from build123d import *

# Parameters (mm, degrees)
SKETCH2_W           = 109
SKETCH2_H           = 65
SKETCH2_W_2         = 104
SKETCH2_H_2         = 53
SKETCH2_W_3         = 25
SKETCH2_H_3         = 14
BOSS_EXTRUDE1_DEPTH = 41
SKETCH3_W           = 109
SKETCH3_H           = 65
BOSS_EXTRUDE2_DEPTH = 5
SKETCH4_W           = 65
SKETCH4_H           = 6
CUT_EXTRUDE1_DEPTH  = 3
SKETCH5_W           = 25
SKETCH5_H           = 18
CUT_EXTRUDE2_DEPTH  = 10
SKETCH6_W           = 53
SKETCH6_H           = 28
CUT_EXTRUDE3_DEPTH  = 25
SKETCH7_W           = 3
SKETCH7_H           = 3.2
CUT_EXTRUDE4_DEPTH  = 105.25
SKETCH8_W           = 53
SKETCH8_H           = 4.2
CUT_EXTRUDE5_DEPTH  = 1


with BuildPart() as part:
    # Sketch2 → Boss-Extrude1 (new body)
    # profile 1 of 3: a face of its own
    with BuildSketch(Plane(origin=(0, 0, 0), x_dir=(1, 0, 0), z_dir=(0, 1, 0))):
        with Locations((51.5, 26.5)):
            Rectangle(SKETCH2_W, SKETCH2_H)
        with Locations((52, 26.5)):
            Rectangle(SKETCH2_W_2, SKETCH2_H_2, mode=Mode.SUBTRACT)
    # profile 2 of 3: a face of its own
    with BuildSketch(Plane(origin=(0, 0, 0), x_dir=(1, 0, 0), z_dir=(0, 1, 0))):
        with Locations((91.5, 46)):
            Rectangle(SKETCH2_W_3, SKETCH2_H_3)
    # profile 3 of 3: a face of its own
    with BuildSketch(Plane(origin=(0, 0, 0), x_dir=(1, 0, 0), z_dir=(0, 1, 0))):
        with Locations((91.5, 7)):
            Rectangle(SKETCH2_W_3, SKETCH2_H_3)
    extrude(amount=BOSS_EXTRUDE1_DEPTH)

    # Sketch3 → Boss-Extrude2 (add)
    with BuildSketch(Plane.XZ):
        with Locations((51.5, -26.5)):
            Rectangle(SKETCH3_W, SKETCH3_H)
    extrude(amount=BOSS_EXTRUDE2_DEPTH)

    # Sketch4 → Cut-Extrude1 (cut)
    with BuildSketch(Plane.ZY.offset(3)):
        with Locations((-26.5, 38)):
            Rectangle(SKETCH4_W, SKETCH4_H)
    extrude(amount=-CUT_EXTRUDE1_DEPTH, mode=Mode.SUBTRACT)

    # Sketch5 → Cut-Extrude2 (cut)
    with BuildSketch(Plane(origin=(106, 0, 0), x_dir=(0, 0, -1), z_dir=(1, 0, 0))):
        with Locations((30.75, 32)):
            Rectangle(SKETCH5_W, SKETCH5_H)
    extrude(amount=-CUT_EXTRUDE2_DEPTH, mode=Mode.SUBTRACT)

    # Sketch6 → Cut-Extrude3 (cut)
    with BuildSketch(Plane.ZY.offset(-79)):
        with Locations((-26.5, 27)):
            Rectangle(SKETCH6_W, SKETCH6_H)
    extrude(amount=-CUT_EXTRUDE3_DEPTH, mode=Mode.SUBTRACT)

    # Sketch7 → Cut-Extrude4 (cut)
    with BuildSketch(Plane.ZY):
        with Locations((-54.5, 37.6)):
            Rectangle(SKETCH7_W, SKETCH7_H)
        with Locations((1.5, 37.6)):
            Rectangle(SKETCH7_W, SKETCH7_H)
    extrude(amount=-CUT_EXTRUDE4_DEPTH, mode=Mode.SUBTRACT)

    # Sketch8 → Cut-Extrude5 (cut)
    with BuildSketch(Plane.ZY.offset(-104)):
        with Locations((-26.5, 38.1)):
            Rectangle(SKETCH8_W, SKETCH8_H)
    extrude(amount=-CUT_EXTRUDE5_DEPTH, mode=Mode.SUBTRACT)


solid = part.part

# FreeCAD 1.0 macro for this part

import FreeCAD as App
import Part
import Sketcher

V = App.Vector


def add_polygon(sketch, points):
    """Adds a closed chain of lines whose ends are joined by coincident constraints."""
    first, n = sketch.GeometryCount, len(points)
    for a, b in zip(points, points[1:] + points[:1]):
        sketch.addGeometry(Part.LineSegment(App.Vector(*a, 0), App.Vector(*b, 0)), False)
    for i in range(n):
        sketch.addConstraint(Sketcher.Constraint("Coincident", first + i, 2, first + (i + 1) % n, 1))

doc = App.newDocument("Part")
params = doc.addObject("Spreadsheet::Sheet", "Params")
for row, (alias, value) in enumerate([
    ("sketch1_width", "109 mm"),
    ("sketch1_width2", "79 mm"),
    ("sketch1_width3", "25 mm"),
    ("sketch1_height", "65 mm"),
    ("sketch1_height2", "53 mm"),
    ("pad1_length", "41 mm"),
    ("sketch2_width", "109 mm"),
    ("sketch2_height", "65 mm"),
    ("pad2_length", "5 mm"),
    ("sketch3_width", "6 mm"),
    ("sketch3_height", "65 mm"),
    ("pocket1_length", "3 mm"),
    ("sketch4_width", "18 mm"),
    ("sketch4_height", "25 mm"),
    ("pocket2_length", "10 mm"),
    ("sketch5_width", "28 mm"),
    ("sketch5_height", "53 mm"),
    ("pocket3_length", "25 mm"),
    ("sketch6_height", "3 mm"),
    ("sketch6_width", "3.2 mm"),
    ("pocket4_length", "105.25 mm"),
    ("sketch7_height", "53 mm"),
    ("sketch7_width", "4.2 mm"),
    ("pocket5_length", "1 mm"),
], start=1):
    params.set(f"A{row}", alias)
    params.set(f"B{row}", "=" + value)
    params.setAlias(f"B{row}", alias)

body = doc.addObject("PartDesign::Body", "Body")

sketch1 = body.newObject("Sketcher::SketchObject", "Sketch")
sketch1.AttachmentSupport = (doc.getObject("XZ_Plane"), [""])
sketch1.MapMode = "FlatFace"
add_polygon(sketch1, [(-3, -59), (-3, 6), (106, 6), (106, -59)])
add_polygon(sketch1, [(79, 0), (0, 0), (0, -53), (79, -53), (79, -39), (104, -39), (104, -14), (79, -14)])
sketch1.addConstraint([
    Sketcher.Constraint("Vertical", 0),
    Sketcher.Constraint("Horizontal", 1),
    Sketcher.Constraint("Vertical", 2),
    Sketcher.Constraint("Horizontal", 3),
    Sketcher.Constraint("Horizontal", 4),
    Sketcher.Constraint("Vertical", 5),
    Sketcher.Constraint("Horizontal", 6),
    Sketcher.Constraint("Vertical", 7),
    Sketcher.Constraint("Horizontal", 8),
    Sketcher.Constraint("Vertical", 9),
    Sketcher.Constraint("Horizontal", 10),
    Sketcher.Constraint("Vertical", 11),
    Sketcher.Constraint("Coincident", 4, 2, -1, 1),
    Sketcher.Constraint("Vertical", 7, 2, 10, 2),
    Sketcher.Constraint("Equal", 10, 9),
    Sketcher.Constraint("Equal", 7, 11),
    Sketcher.Constraint("DistanceX", 1, 1, 1, 2, 109.0),
    Sketcher.Constraint("DistanceX", 4, 2, 4, 1, 79.0),
    Sketcher.Constraint("DistanceX", 8, 1, 8, 2, 25.0),
    Sketcher.Constraint("DistanceY", 0, 1, 0, 2, 65.0),
    Sketcher.Constraint("DistanceY", 5, 2, 5, 1, 53.0),
    Sketcher.Constraint("DistanceX", 0, 2, -1, 1, 3.0),
    Sketcher.Constraint("DistanceY", -1, 1, 0, 2, 6.0),
])
sketch1.setExpression("Constraints[28]", "Params.sketch1_width")
sketch1.setExpression("Constraints[29]", "Params.sketch1_width2")
sketch1.setExpression("Constraints[30]", "Params.sketch1_width3")
sketch1.setExpression("Constraints[31]", "Params.sketch1_height")
sketch1.setExpression("Constraints[32]", "Params.sketch1_height2")
pad1 = body.newObject("PartDesign::Pad", "Pad")
pad1.Profile = sketch1
pad1.setExpression("Length", "Params.pad1_length")
pad1.Reversed = True

sketch2 = body.newObject("Sketcher::SketchObject", "Sketch001")
sketch2.AttachmentSupport = (doc.getObject("XZ_Plane"), [""])
sketch2.MapMode = "FlatFace"
add_polygon(sketch2, [(-3, 6), (-3, -59), (106, -59), (106, 6)])
sketch2.addConstraint([
    Sketcher.Constraint("Vertical", 0),
    Sketcher.Constraint("Horizontal", 1),
    Sketcher.Constraint("Vertical", 2),
    Sketcher.Constraint("Horizontal", 3),
    Sketcher.Constraint("DistanceX", 1, 1, 1, 2, 109.0),
    Sketcher.Constraint("DistanceY", 0, 2, 0, 1, 65.0),
    Sketcher.Constraint("DistanceX", 0, 2, -1, 1, 3.0),
    Sketcher.Constraint("DistanceY", 0, 2, -1, 1, 59.0),
])
sketch2.setExpression("Constraints[8]", "Params.sketch2_width")
sketch2.setExpression("Constraints[9]", "Params.sketch2_height")
pad2 = body.newObject("PartDesign::Pad", "Pad001")
pad2.Profile = sketch2
pad2.setExpression("Length", "Params.pad2_length")

sketch3 = body.newObject("Sketcher::SketchObject", "Sketch002")
sketch3.AttachmentSupport = (doc.getObject("YZ_Plane"), [""])
sketch3.MapMode = "FlatFace"
sketch3.AttachmentOffset = App.Placement(V(0, 0, -3), App.Rotation())
add_polygon(sketch3, [(41, -59), (35, -59), (35, 6), (41, 6)])
sketch3.addConstraint([
    Sketcher.Constraint("Horizontal", 0),
    Sketcher.Constraint("Vertical", 1),
    Sketcher.Constraint("Horizontal", 2),
    Sketcher.Constraint("Vertical", 3),
    Sketcher.Constraint("DistanceX", 0, 2, 0, 1, 6.0),
    Sketcher.Constraint("DistanceY", 1, 1, 1, 2, 65.0),
    Sketcher.Constraint("DistanceX", -1, 1, 0, 2, 35.0),
    Sketcher.Constraint("DistanceY", 0, 2, -1, 1, 59.0),
])
sketch3.setExpression("Constraints[8]", "Params.sketch3_width")
sketch3.setExpression("Constraints[9]", "Params.sketch3_height")
pocket1 = body.newObject("PartDesign::Pocket", "Pocket")
pocket1.Profile = sketch3
pocket1.setExpression("Length", "Params.pocket1_length")
pocket1.Reversed = True

sketch4 = body.newObject("Sketcher::SketchObject", "Sketch003")
sketch4.AttachmentSupport = (doc.getObject("YZ_Plane"), [""])
sketch4.MapMode = "FlatFace"
sketch4.AttachmentOffset = App.Placement(V(0, 0, 106), App.Rotation())
add_polygon(sketch4, [(41, -18), (23, -18), (23, -43), (41, -43)])
sketch4.addConstraint([
    Sketcher.Constraint("Horizontal", 0),
    Sketcher.Constraint("Vertical", 1),
    Sketcher.Constraint("Horizontal", 2),
    Sketcher.Constraint("Vertical", 3),
    Sketcher.Constraint("DistanceX", 0, 2, 0, 1, 18.0),
    Sketcher.Constraint("DistanceY", 1, 2, 1, 1, 25.0),
    Sketcher.Constraint("DistanceX", -1, 1, 0, 2, 23.0),
    Sketcher.Constraint("DistanceY", 0, 2, -1, 1, 18.25),
])
sketch4.setExpression("Constraints[8]", "Params.sketch4_width")
sketch4.setExpression("Constraints[9]", "Params.sketch4_height")
pocket2 = body.newObject("PartDesign::Pocket", "Pocket001")
pocket2.Profile = sketch4
pocket2.setExpression("Length", "Params.pocket2_length")

sketch5 = body.newObject("Sketcher::SketchObject", "Sketch004")
sketch5.AttachmentSupport = (doc.getObject("YZ_Plane"), [""])
sketch5.MapMode = "FlatFace"
sketch5.AttachmentOffset = App.Placement(V(0, 0, 79), App.Rotation())
add_polygon(sketch5, [(41, -53), (13, -53), (13, 0), (41, 0)])
sketch5.addConstraint([
    Sketcher.Constraint("Horizontal", 0),
    Sketcher.Constraint("Vertical", 1),
    Sketcher.Constraint("Horizontal", 2),
    Sketcher.Constraint("Vertical", 3),
    Sketcher.Constraint("PointOnObject", 1, 2, -1),
    Sketcher.Constraint("DistanceX", 0, 2, 0, 1, 28.0),
    Sketcher.Constraint("DistanceY", 1, 1, 1, 2, 53.0),
    Sketcher.Constraint("DistanceX", -1, 1, 0, 2, 13.0),
])
sketch5.setExpression("Constraints[9]", "Params.sketch5_width")
sketch5.setExpression("Constraints[10]", "Params.sketch5_height")
pocket3 = body.newObject("PartDesign::Pocket", "Pocket002")
pocket3.Profile = sketch5
pocket3.setExpression("Length", "Params.pocket3_length")
pocket3.Reversed = True

sketch6 = body.newObject("Sketcher::SketchObject", "Sketch005")
sketch6.AttachmentSupport = (doc.getObject("YZ_Plane"), [""])
sketch6.MapMode = "FlatFace"
add_polygon(sketch6, [(39.2, -56), (36, -56), (36, -53), (39.2, -53)])
add_polygon(sketch6, [(39.2, 0), (36, 0), (36, 3), (39.2, 3)])
sketch6.addConstraint([
    Sketcher.Constraint("Horizontal", 0),
    Sketcher.Constraint("Vertical", 1),
    Sketcher.Constraint("Horizontal", 2),
    Sketcher.Constraint("Vertical", 3),
    Sketcher.Constraint("Horizontal", 4),
    Sketcher.Constraint("Vertical", 5),
    Sketcher.Constraint("Horizontal", 6),
    Sketcher.Constraint("Vertical", 7),
    Sketcher.Constraint("PointOnObject", 4, 2, -1),
    Sketcher.Constraint("Vertical", 1, 2, 4, 2),
    Sketcher.Constraint("Vertical", 3, 2, 6, 2),
    Sketcher.Constraint("Equal", 3, 5),
    Sketcher.Constraint("DistanceY", 1, 1, 1, 2, 3.0),
    Sketcher.Constraint("DistanceX", 0, 2, 0, 1, 3.2),
    Sketcher.Constraint("DistanceX", -1, 1, 0, 2, 36.0),
    Sketcher.Constraint("DistanceY", 0, 2, -1, 1, 56.0),
])
sketch6.setExpression("Constraints[20]", "Params.sketch6_height")
sketch6.setExpression("Constraints[21]", "Params.sketch6_width")
pocket4 = body.newObject("PartDesign::Pocket", "Pocket003")
pocket4.Profile = sketch6
pocket4.setExpression("Length", "Params.pocket4_length")
pocket4.Reversed = True

sketch7 = body.newObject("Sketcher::SketchObject", "Sketch006")
sketch7.AttachmentSupport = (doc.getObject("YZ_Plane"), [""])
sketch7.MapMode = "FlatFace"
sketch7.AttachmentOffset = App.Placement(V(0, 0, 104), App.Rotation())
add_polygon(sketch7, [(40.2, -53), (36, -53), (36, 0), (40.2, 0)])
sketch7.addConstraint([
    Sketcher.Constraint("Horizontal", 0),
    Sketcher.Constraint("Vertical", 1),
    Sketcher.Constraint("Horizontal", 2),
    Sketcher.Constraint("Vertical", 3),
    Sketcher.Constraint("PointOnObject", 1, 2, -1),
    Sketcher.Constraint("DistanceY", 1, 1, 1, 2, 53.0),
    Sketcher.Constraint("DistanceX", 0, 2, 0, 1, 4.2),
    Sketcher.Constraint("DistanceX", -1, 1, 0, 2, 36.0),
])
sketch7.setExpression("Constraints[9]", "Params.sketch7_height")
sketch7.setExpression("Constraints[10]", "Params.sketch7_width")
pocket5 = body.newObject("PartDesign::Pocket", "Pocket004")
pocket5.Profile = sketch7
pocket5.setExpression("Length", "Params.pocket5_length")
pocket5.Reversed = True

doc.recompute()
